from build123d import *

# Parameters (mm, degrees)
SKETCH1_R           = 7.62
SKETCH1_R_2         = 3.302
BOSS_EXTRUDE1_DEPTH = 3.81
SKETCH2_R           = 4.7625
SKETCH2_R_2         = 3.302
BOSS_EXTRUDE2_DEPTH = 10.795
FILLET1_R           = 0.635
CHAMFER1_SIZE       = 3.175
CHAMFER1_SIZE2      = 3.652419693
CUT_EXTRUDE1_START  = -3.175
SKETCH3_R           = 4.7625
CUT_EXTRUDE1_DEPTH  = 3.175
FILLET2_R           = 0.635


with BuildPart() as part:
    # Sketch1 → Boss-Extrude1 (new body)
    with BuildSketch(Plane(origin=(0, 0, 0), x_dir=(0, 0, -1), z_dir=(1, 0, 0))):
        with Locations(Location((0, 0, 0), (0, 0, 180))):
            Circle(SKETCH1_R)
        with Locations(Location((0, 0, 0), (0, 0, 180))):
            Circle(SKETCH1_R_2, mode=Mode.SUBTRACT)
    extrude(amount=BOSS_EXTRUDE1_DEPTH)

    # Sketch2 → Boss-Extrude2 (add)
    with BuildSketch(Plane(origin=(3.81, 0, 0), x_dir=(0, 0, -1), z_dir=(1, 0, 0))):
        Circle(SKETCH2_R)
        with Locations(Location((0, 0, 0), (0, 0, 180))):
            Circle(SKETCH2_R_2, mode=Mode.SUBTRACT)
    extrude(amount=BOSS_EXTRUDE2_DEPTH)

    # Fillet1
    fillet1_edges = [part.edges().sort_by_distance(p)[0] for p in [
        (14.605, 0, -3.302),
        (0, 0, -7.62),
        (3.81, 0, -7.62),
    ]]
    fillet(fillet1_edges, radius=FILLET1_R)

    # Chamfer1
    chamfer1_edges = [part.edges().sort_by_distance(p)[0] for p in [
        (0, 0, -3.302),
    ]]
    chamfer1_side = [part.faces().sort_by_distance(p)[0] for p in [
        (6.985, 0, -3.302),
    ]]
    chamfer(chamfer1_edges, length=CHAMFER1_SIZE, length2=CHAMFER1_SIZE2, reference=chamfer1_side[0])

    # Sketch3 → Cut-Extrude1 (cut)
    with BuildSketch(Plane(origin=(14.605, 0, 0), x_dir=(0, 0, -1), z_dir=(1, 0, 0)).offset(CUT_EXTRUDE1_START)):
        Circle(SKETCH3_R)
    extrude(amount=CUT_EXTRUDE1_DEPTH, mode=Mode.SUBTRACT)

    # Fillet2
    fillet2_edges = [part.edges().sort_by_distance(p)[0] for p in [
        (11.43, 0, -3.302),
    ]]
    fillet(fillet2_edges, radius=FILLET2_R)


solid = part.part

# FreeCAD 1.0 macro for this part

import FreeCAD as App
import Part
import Sketcher

V = App.Vector
Q = App.Units.Quantity


def edges_at(feature, points):
    """Names of the edges that pass closest to the given points."""
    edges = feature.Shape.Edges
    near = lambda p: min(range(len(edges)), key=lambda i: edges[i].distToShape(Part.Vertex(*p))[0])
    return sorted({f"Edge{near(p) + 1}" for p in points})

doc = App.newDocument("Part")
body = doc.addObject("PartDesign::Body", "Body")

# Sketch on YZ plane
sketch1 = body.newObject("Sketcher::SketchObject", "Sketch")
sketch1.AttachmentSupport = (doc.getObject("YZ_Plane"), [""])
sketch1.MapMode = "FlatFace"
sketch1.addGeometry([
    Part.Circle(V(0, 0, 0), V(0, 0, 1), 7.6),
    Part.Circle(V(0, 0, 0), V(0, 0, 1), 3.3),
], False)
sketch1.addConstraint([
    Sketcher.Constraint("Coincident", 0, 3, -1, 1),
    Sketcher.Constraint("Coincident", 1, 3, -1, 1),
    Sketcher.Constraint("Diameter", 0, Q("0.6 in")),
    Sketcher.Constraint("Diameter", 1, Q("0.26 in")),
])
pad1 = body.newObject("PartDesign::Pad", "Pad")
pad1.Profile = sketch1
pad1.Length = Q("0.15 in")

# Sketch on YZ plane
sketch2 = body.newObject("Sketcher::SketchObject", "Sketch001")
sketch2.AttachmentSupport = (doc.getObject("YZ_Plane"), [""])
sketch2.MapMode = "FlatFace"
sketch2.AttachmentOffset = App.Placement(V(0, 0, 0.15 * 25.4), App.Rotation())
sketch2.addGeometry([
    Part.Circle(V(0, 0, 0), V(0, 0, 1), 4.8),
    Part.Circle(V(0, 0, 0), V(0, 0, 1), 3.3),
], False)
sketch2.addConstraint([
    Sketcher.Constraint("Coincident", 0, 3, -1, 1),
    Sketcher.Constraint("Coincident", 1, 3, -1, 1),
    Sketcher.Constraint("Diameter", 1, Q("0.26 in")),
    Sketcher.Constraint("Diameter", 0, Q("0.375 in")),
])
pad2 = body.newObject("PartDesign::Pad", "Pad001")
pad2.Profile = sketch2
pad2.Length = Q("0.425 in")
doc.recompute()

fillet = body.newObject("PartDesign::Fillet", "Fillet")
fillet.Base = (pad2, edges_at(pad2, [(14.605, 0, -3.302), (0, 0, -7.62), (3.81, 0, -7.62)]))
fillet.Radius = Q("0.025 in")
doc.recompute()

chamfer = body.newObject("PartDesign::Chamfer", "Chamfer")
chamfer.Base = (fillet, edges_at(fillet, [(0, 0, -3.302)]))
chamfer.ChamferType = "Two distances"
chamfer.Size = Q("0.125 in")
chamfer.Size2 = 3.65242
chamfer.FlipDirection = True

# Sketch on YZ plane
sketch3 = body.newObject("Sketcher::SketchObject", "Sketch002")
sketch3.AttachmentSupport = (doc.getObject("YZ_Plane"), [""])
sketch3.MapMode = "FlatFace"
sketch3.AttachmentOffset = App.Placement(V(0, 0, 0.45 * 25.4), App.Rotation())
sketch3.addGeometry(Part.Circle(V(0, 0, 0), V(0, 0, 1), 4.8), False)
sketch3.addConstraint([
    Sketcher.Constraint("Coincident", 0, 3, -1, 1),
    Sketcher.Constraint("Diameter", 0, Q("0.375 in")),
])
pocket1 = body.newObject("PartDesign::Pocket", "Pocket")
pocket1.Profile = sketch3
pocket1.Length = Q("0.125 in")
pocket1.Reversed = True
doc.recompute()

fillet2 = body.newObject("PartDesign::Fillet", "Fillet001")
fillet2.Base = (pocket1, edges_at(pocket1, [(11.43, 0, -3.302)]))
fillet2.Radius = Q("0.025 in")

doc.recompute()
